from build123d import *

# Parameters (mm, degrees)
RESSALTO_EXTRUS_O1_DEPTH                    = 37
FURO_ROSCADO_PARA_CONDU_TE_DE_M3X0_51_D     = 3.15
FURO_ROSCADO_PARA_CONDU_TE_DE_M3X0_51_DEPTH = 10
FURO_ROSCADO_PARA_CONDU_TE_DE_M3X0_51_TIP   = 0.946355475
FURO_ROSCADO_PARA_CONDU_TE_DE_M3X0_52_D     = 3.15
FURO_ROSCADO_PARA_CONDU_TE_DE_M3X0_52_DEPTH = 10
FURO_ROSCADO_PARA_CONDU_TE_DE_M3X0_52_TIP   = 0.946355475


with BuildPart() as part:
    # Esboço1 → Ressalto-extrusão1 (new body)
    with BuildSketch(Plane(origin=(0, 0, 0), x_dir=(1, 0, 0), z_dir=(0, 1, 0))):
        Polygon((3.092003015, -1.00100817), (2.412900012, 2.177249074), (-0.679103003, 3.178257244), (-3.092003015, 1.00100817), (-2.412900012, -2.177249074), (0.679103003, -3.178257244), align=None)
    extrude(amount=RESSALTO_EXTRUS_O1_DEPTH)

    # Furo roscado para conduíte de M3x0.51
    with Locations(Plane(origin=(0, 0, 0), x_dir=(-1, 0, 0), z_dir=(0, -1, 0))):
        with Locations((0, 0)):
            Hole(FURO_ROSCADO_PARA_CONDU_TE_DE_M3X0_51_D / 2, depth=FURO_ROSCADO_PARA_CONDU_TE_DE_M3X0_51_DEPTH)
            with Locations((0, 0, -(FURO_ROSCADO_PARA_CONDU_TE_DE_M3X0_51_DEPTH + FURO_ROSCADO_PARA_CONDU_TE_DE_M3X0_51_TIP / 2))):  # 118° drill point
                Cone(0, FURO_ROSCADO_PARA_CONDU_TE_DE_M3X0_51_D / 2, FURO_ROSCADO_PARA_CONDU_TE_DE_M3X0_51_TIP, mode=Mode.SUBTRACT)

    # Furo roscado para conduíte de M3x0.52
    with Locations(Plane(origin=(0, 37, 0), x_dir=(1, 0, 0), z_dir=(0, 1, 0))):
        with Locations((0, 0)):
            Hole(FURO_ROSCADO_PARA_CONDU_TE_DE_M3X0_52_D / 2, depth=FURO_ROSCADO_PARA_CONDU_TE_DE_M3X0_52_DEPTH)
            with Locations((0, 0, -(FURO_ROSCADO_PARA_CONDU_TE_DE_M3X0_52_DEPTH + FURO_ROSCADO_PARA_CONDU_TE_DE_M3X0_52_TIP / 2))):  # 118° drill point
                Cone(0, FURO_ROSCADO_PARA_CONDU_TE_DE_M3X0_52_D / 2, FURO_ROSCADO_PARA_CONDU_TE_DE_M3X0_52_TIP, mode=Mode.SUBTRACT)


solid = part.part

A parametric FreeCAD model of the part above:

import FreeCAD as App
import Part
import Sketcher

V = App.Vector


def add_polygon(sketch, points):
    """Adds a closed chain of lines whose ends are joined by coincident constraints."""
    first, n = sketch.GeometryCount, len(points)
    for a, b in zip(points, points[1:] + points[:1]):
        sketch.addGeometry(Part.LineSegment(App.Vector(*a, 0), App.Vector(*b, 0)), False)
    for i in range(n):
        sketch.addConstraint(Sketcher.Constraint("Coincident", first + i, 2, first + (i + 1) % n, 1))

doc = App.newDocument("Part")
body = doc.addObject("PartDesign::Body", "Body")

# Sketch on XZ plane
sketch1 = doc.addObject("Sketcher::SketchObject", "Sketch")
body.addObject(sketch1)
sketch1.AttachmentSupport = (doc.XZ_Plane, [""])
sketch1.MapMode = "FlatFace"
add_polygon(sketch1, [(3.1, 1), (2.4, -2.2), (-0.7, -3.2), (-3.1, -1), (-2.4, 2.2), (0.7, 3.2)])  # lines 0-5
sketch1.addConstraint([
    Sketcher.Constraint("Symmetric", 0, 2, 3, 2, -1, 1),
    Sketcher.Constraint("Symmetric", 1, 2, 4, 2, -1, 1),
    Sketcher.Constraint("Symmetric", 2, 2, 5, 2, -1, 1),
    Sketcher.Constraint("Equal", 0, 1),
    Sketcher.Constraint("Equal", 1, 2),
    Sketcher.Constraint("Distance", 0, 3.25),
    Sketcher.Constraint("DistanceX", -1, 1, 0, 2, 2.4129),
    Sketcher.Constraint("DistanceX", 2, 2, 1, 2, 2.4129),
    Sketcher.Constraint("DistanceY", 0, 2, 3, 2, 4.354498),
])
pad1 = doc.addObject("PartDesign::Pad", "Pad")
body.addObject(pad1)
pad1.Profile = sketch1
pad1.Length = 37
pad1.Reversed = True

# Sketch on XZ plane
sketch2 = doc.addObject("Sketcher::SketchObject", "Sketch001")
body.addObject(sketch2)
sketch2.AttachmentSupport = (doc.XZ_Plane, [""])
sketch2.MapMode = "FlatFace"
sketch2.addGeometry(Part.Circle(V(0, 0, 0), V(0, 0, 1), 1.6), False)
sketch2.addConstraint([
    Sketcher.Constraint("Coincident", 0, 3, -1, 1),
    Sketcher.Constraint("Diameter", 0, 3.15),
])
doc.recompute()
hole = doc.addObject("PartDesign::Hole", "Hole")
body.addObject(hole)
hole.Profile = sketch2
hole.ThreadType = "None"
hole.Diameter = 3.15
hole.DepthType = "Dimension"
hole.Depth = 10
hole.DrillPoint = "Angled"
hole.DrillPointAngle = 118

# Sketch on XZ plane
sketch3 = doc.addObject("Sketcher::SketchObject", "Sketch002")
body.addObject(sketch3)
sketch3.AttachmentSupport = (doc.XZ_Plane, [""])
sketch3.MapMode = "FlatFace"
sketch3.AttachmentOffset = App.Placement(V(0, 0, -37), App.Rotation())
sketch3.addGeometry(Part.Circle(V(0, 0, 0), V(0, 0, 1), 1.6), False)
sketch3.addConstraint([
    Sketcher.Constraint("Coincident", 0, 3, -1, 1),
    Sketcher.Constraint("Diameter", 0, 3.15),
])
doc.recompute()
hole2 = doc.addObject("PartDesign::Hole", "Hole001")
body.addObject(hole2)
hole2.Profile = sketch3
hole2.ThreadType = "None"
hole2.Diameter = 3.15
hole2.DepthType = "Dimension"
hole2.Depth = 10
hole2.DrillPoint = "Angled"
hole2.DrillPointAngle = 118
hole2.Reversed = True

doc.recompute()
